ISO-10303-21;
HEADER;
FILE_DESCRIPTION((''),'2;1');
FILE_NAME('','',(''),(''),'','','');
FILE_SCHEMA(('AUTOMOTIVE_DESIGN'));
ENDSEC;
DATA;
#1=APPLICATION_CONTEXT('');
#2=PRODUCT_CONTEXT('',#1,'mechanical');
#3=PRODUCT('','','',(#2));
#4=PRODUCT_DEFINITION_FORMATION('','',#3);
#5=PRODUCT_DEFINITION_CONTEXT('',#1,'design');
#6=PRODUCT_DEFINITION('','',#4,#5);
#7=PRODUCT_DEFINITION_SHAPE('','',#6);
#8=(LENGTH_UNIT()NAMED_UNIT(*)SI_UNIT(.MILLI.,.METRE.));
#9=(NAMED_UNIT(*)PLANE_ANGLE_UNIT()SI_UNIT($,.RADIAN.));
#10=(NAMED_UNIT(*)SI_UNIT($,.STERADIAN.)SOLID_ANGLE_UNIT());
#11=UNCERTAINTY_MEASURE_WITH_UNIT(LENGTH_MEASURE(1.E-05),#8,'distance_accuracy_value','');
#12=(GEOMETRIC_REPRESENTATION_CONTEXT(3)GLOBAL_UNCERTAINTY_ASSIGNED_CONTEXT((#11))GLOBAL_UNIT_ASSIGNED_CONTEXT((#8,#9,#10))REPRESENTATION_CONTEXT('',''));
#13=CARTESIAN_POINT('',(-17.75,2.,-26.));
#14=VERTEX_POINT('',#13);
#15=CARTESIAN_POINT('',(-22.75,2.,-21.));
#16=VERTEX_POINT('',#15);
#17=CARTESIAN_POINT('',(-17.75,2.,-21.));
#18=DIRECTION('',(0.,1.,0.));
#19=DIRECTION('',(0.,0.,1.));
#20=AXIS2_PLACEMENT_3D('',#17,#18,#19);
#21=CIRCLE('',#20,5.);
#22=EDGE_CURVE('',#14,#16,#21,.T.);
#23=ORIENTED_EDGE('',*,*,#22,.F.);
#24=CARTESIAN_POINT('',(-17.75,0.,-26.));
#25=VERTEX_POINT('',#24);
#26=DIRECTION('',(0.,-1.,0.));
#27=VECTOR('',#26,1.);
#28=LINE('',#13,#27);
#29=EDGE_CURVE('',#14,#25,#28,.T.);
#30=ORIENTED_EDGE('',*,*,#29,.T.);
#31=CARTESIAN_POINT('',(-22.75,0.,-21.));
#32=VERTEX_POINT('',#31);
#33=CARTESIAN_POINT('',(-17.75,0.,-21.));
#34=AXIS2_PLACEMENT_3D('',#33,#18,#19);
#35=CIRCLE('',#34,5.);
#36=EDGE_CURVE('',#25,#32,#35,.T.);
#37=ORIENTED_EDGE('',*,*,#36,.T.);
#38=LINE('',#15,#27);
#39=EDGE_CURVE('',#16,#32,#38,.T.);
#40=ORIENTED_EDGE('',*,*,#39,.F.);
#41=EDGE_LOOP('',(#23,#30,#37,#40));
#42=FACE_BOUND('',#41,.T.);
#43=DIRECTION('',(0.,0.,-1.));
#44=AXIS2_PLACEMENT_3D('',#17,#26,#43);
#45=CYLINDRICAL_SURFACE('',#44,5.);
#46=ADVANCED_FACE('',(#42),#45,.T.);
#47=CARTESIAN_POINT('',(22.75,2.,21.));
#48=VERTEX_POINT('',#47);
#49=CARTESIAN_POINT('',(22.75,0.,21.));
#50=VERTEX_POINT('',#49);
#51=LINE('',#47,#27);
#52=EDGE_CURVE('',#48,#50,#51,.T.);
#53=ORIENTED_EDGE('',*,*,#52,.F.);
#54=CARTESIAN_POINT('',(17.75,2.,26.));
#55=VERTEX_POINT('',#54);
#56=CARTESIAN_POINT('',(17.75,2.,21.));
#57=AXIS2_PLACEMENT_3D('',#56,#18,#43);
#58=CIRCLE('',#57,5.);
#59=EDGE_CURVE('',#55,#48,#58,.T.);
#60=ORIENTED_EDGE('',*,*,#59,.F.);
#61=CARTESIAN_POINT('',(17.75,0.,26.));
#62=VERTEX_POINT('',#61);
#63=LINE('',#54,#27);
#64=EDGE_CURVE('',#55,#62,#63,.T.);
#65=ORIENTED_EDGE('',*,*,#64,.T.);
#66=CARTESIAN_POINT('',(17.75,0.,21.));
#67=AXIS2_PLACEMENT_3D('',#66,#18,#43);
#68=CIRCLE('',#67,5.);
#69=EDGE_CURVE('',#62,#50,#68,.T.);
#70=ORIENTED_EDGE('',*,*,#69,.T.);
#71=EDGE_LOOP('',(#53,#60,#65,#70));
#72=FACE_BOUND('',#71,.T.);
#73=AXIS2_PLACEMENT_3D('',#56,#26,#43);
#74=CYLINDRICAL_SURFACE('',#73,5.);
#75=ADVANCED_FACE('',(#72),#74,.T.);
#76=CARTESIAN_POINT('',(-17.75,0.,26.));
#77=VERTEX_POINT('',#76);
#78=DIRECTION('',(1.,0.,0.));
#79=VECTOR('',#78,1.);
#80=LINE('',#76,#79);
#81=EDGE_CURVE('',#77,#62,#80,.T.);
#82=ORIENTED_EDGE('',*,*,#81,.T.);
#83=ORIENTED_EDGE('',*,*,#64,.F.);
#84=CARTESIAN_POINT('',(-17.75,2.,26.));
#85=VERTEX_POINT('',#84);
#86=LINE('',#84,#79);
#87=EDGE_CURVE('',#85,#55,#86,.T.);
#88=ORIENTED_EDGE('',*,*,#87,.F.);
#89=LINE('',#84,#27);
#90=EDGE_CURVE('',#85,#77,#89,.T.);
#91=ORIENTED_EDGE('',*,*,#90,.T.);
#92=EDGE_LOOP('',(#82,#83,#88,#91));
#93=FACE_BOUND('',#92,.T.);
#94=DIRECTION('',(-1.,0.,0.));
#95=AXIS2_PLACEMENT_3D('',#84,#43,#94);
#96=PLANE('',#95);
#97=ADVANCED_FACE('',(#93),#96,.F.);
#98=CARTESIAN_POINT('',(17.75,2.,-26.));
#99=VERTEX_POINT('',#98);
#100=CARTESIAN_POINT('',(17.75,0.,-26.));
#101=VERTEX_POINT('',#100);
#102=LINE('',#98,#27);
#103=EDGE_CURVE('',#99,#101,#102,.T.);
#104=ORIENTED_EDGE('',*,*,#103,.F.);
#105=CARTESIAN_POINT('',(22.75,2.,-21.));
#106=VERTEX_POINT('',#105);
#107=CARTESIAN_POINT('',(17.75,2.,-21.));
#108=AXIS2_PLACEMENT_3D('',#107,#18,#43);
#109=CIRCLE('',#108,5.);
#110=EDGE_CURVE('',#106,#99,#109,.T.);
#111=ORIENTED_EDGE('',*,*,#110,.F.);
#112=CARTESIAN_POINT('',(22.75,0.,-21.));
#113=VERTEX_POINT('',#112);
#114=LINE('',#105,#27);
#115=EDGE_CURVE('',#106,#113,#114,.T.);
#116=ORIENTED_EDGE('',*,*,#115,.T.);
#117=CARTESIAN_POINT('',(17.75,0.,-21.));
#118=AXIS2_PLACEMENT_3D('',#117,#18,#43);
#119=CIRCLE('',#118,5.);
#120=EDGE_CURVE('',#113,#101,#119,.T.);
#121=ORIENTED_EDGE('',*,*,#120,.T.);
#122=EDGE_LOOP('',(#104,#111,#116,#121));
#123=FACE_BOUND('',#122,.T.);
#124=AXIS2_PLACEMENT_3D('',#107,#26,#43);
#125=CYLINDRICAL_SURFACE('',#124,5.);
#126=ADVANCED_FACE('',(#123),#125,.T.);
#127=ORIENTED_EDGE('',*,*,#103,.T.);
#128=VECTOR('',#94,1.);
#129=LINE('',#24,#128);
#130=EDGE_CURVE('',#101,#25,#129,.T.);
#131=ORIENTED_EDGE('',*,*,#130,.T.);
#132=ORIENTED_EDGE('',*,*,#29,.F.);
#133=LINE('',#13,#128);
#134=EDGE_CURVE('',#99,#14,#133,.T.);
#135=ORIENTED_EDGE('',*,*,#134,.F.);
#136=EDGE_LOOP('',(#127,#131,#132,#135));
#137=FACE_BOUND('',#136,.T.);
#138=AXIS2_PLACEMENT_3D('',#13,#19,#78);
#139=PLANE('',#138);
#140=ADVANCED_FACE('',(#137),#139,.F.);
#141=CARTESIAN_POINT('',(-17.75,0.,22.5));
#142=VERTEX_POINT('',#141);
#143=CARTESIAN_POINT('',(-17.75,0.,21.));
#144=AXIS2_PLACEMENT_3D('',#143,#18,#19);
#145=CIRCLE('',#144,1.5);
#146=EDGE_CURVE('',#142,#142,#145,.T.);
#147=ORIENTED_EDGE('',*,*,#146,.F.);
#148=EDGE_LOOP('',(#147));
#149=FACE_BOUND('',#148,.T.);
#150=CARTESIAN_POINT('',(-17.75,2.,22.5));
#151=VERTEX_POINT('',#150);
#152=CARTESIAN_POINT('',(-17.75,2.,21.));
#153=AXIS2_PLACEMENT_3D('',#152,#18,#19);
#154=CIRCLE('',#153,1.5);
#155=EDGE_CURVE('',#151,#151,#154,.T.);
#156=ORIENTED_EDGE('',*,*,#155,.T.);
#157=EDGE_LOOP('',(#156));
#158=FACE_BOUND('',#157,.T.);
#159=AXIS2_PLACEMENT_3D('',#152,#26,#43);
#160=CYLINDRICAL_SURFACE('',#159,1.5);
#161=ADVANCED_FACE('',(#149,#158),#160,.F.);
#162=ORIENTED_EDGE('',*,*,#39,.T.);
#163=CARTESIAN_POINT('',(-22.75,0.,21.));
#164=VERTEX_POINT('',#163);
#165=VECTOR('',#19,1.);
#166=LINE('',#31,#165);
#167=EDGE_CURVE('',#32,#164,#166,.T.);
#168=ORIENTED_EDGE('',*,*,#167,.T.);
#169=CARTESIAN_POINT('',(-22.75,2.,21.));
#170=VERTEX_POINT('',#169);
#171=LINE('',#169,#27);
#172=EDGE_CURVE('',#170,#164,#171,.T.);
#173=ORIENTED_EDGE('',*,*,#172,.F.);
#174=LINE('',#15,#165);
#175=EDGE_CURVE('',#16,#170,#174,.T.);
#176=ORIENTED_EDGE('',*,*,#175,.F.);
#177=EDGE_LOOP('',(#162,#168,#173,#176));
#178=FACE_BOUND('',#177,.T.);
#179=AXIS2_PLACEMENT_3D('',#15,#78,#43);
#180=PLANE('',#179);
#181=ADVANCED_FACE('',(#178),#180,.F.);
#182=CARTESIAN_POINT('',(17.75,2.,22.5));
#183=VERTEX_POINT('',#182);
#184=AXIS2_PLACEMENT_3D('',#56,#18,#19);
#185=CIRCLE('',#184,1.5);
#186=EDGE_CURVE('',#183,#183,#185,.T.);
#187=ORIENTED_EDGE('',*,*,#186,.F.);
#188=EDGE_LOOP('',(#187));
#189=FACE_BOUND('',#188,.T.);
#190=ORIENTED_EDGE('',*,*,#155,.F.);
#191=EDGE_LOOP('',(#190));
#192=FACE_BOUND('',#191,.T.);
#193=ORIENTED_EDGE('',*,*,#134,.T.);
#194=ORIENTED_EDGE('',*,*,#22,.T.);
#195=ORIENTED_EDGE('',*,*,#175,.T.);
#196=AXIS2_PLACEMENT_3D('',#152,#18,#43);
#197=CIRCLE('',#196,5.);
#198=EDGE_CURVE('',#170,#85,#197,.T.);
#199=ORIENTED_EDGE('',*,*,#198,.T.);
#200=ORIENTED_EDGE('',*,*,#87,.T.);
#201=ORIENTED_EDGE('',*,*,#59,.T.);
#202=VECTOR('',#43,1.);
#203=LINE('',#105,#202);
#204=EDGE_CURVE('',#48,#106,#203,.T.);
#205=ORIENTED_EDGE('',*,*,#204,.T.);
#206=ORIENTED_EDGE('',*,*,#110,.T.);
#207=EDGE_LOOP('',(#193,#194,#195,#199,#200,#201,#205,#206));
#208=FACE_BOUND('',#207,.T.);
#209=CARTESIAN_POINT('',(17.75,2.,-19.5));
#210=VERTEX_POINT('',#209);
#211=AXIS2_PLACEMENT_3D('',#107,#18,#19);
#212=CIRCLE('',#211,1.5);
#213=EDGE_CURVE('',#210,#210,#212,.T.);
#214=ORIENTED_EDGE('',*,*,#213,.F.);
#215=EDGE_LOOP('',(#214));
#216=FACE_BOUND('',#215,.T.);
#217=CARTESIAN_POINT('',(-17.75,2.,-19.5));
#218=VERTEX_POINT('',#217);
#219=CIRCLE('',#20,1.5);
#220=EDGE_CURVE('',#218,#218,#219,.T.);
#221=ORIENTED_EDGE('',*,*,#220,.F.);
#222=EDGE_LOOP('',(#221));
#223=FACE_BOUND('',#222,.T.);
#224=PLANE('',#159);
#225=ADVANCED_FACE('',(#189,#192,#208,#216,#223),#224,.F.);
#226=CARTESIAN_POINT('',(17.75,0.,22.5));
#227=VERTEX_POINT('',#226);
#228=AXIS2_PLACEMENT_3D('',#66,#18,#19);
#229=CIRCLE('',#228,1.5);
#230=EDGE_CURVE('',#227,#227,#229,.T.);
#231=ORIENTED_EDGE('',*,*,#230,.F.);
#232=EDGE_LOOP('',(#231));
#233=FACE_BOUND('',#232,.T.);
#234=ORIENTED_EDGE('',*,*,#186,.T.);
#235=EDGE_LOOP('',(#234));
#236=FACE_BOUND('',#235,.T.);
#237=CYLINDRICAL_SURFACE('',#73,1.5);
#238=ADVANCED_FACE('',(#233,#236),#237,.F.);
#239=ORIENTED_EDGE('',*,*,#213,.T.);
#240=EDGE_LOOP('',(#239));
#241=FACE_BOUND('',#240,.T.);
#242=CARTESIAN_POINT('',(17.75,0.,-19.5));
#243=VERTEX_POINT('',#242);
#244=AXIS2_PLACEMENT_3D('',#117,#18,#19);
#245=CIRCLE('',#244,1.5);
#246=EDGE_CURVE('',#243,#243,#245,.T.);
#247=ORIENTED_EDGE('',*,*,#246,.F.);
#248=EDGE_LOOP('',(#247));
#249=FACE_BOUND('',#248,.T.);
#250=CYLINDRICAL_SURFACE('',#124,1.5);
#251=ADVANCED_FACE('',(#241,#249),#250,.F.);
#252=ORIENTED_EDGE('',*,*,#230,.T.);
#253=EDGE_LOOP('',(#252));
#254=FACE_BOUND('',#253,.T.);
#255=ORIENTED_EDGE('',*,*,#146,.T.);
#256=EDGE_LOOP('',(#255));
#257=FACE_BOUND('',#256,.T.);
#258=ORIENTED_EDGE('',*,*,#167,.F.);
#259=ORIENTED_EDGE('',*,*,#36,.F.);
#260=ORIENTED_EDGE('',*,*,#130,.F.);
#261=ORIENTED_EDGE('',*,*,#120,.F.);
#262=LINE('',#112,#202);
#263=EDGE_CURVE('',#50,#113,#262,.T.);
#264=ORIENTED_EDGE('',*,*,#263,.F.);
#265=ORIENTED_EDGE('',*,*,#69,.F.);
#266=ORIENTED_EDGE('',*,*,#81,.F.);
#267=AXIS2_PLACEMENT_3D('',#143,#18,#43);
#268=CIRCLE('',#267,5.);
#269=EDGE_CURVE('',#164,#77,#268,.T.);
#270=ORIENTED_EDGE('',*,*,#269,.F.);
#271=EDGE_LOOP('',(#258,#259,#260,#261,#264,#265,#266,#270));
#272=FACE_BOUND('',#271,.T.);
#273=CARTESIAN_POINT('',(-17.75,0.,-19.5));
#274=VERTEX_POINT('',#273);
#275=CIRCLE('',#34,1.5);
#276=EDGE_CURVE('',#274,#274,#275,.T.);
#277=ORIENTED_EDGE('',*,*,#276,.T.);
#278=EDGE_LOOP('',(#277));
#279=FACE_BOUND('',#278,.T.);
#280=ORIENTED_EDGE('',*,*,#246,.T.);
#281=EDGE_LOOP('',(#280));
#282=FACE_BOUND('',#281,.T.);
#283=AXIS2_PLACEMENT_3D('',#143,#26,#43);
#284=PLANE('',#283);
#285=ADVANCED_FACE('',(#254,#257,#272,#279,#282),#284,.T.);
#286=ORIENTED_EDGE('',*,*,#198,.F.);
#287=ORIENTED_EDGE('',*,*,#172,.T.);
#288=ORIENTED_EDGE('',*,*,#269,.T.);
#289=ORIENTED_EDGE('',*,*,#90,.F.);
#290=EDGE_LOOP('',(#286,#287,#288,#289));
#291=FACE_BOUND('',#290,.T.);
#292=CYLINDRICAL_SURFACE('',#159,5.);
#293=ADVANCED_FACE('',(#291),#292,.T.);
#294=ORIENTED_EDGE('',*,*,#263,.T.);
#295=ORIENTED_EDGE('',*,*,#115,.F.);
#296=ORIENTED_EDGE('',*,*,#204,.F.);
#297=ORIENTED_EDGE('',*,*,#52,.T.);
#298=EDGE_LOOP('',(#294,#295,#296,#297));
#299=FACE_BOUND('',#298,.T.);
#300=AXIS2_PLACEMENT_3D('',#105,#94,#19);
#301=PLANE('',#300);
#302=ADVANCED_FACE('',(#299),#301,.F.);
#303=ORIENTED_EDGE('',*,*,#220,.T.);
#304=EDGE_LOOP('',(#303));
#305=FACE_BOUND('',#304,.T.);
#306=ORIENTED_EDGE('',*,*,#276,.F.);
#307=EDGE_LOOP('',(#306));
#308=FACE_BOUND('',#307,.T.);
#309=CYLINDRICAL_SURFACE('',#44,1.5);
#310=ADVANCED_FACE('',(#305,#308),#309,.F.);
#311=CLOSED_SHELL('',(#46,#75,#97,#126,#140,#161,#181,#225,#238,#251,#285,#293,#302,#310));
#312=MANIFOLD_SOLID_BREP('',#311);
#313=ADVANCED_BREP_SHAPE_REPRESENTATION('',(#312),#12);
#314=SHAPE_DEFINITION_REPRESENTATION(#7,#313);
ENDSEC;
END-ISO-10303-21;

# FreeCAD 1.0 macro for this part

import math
import FreeCAD as App
import Part
import Sketcher
Q = App.Units.Quantity

doc = App.newDocument("Part")
body = doc.addObject("PartDesign::Body", "Body")

sketch1 = doc.addObject("Sketcher::SketchObject", "Sketch")
body.addObject(sketch1)
sketch1.AttachmentSupport = (doc.XZ_Plane, [""])
sketch1.MapMode = "FlatFace"
sketch1.addGeometry(Part.LineSegment(App.Vector(17.8, -26, 0), App.Vector(-17.8, -26, 0)), False)
sketch1.addGeometry(Part.ArcOfCircle(Part.Circle(App.Vector(-17.8, -21, 0), App.Vector(0, 0, 1), 5), math.radians(180), math.radians(270)), False)
sketch1.addGeometry(Part.LineSegment(App.Vector(-22.8, -21, 0), App.Vector(-22.8, 21, 0)), False)
sketch1.addGeometry(Part.ArcOfCircle(Part.Circle(App.Vector(-17.8, 21, 0), App.Vector(0, 0, 1), 5), math.radians(90), math.radians(180)), False)
sketch1.addGeometry(Part.LineSegment(App.Vector(-17.8, 26, 0), App.Vector(17.8, 26, 0)), False)
sketch1.addGeometry(Part.ArcOfCircle(Part.Circle(App.Vector(17.8, 21, 0), App.Vector(0, 0, 1), 5), math.radians(0), math.radians(90)), False)
sketch1.addGeometry(Part.LineSegment(App.Vector(22.8, 21, 0), App.Vector(22.8, -21, 0)), False)
sketch1.addGeometry(Part.ArcOfCircle(Part.Circle(App.Vector(17.8, -21, 0), App.Vector(0, 0, 1), 5), math.radians(-90), math.radians(0)), False)
sketch1.addGeometry(Part.Circle(App.Vector(17.8, 21, 0), App.Vector(0, 0, 1), 1.5), False)
sketch1.addGeometry(Part.Circle(App.Vector(-17.8, 21, 0), App.Vector(0, 0, 1), 1.5), False)
sketch1.addGeometry(Part.Circle(App.Vector(17.8, -21, 0), App.Vector(0, 0, 1), 1.5), False)
sketch1.addGeometry(Part.Circle(App.Vector(-17.8, -21, 0), App.Vector(0, 0, 1), 1.5), False)
sketch1.addConstraint(Sketcher.Constraint("Tangent", 0, 2, 1, 2))
sketch1.addConstraint(Sketcher.Constraint("Tangent", 1, 1, 2, 1))
sketch1.addConstraint(Sketcher.Constraint("Tangent", 2, 2, 3, 2))
sketch1.addConstraint(Sketcher.Constraint("Tangent", 3, 1, 4, 1))
sketch1.addConstraint(Sketcher.Constraint("Tangent", 4, 2, 5, 2))
sketch1.addConstraint(Sketcher.Constraint("Tangent", 5, 1, 6, 1))
sketch1.addConstraint(Sketcher.Constraint("Tangent", 6, 2, 7, 2))
sketch1.addConstraint(Sketcher.Constraint("Tangent", 7, 1, 0, 1))
sketch1.addConstraint(Sketcher.Constraint("Horizontal", 0))
sketch1.addConstraint(Sketcher.Constraint("Vertical", 2))
sketch1.addConstraint(Sketcher.Constraint("Horizontal", 4))
sketch1.addConstraint(Sketcher.Constraint("Vertical", 6))
sketch1.addConstraint(Sketcher.Constraint("Coincident", 8, 3, 5, 3))
sketch1.addConstraint(Sketcher.Constraint("Coincident", 9, 3, 3, 3))
sketch1.addConstraint(Sketcher.Constraint("Coincident", 10, 3, 7, 3))
sketch1.addConstraint(Sketcher.Constraint("Coincident", 11, 3, 1, 3))
sketch1.addConstraint(Sketcher.Constraint("Equal", 1, 3))
sketch1.addConstraint(Sketcher.Constraint("Equal", 3, 5))
sketch1.addConstraint(Sketcher.Constraint("Equal", 5, 7))
sketch1.addConstraint(Sketcher.Constraint("Equal", 8, 9))
sketch1.addConstraint(Sketcher.Constraint("Equal", 9, 10))
sketch1.addConstraint(Sketcher.Constraint("Equal", 10, 11))
sketch1.addConstraint(Sketcher.Constraint("Symmetric", 1, 3, 5, 3, -1, 1))
sketch1.addConstraint(Sketcher.Constraint("Diameter", 8, Q("3 mm")))
sketch1.addConstraint(Sketcher.Constraint("Radius", 1, Q("5 mm")))
sketch1.addConstraint(Sketcher.Constraint("DistanceY", 2, 1, 2, 2, Q("42 mm")))
sketch1.addConstraint(Sketcher.Constraint("DistanceX", 0, 2, 0, 1, Q("35.5 mm")))
pad1 = doc.addObject("PartDesign::Pad", "Pad")
body.addObject(pad1)
pad1.Profile = sketch1
pad1.Length = 2
pad1.Reversed = True

doc.recompute()
